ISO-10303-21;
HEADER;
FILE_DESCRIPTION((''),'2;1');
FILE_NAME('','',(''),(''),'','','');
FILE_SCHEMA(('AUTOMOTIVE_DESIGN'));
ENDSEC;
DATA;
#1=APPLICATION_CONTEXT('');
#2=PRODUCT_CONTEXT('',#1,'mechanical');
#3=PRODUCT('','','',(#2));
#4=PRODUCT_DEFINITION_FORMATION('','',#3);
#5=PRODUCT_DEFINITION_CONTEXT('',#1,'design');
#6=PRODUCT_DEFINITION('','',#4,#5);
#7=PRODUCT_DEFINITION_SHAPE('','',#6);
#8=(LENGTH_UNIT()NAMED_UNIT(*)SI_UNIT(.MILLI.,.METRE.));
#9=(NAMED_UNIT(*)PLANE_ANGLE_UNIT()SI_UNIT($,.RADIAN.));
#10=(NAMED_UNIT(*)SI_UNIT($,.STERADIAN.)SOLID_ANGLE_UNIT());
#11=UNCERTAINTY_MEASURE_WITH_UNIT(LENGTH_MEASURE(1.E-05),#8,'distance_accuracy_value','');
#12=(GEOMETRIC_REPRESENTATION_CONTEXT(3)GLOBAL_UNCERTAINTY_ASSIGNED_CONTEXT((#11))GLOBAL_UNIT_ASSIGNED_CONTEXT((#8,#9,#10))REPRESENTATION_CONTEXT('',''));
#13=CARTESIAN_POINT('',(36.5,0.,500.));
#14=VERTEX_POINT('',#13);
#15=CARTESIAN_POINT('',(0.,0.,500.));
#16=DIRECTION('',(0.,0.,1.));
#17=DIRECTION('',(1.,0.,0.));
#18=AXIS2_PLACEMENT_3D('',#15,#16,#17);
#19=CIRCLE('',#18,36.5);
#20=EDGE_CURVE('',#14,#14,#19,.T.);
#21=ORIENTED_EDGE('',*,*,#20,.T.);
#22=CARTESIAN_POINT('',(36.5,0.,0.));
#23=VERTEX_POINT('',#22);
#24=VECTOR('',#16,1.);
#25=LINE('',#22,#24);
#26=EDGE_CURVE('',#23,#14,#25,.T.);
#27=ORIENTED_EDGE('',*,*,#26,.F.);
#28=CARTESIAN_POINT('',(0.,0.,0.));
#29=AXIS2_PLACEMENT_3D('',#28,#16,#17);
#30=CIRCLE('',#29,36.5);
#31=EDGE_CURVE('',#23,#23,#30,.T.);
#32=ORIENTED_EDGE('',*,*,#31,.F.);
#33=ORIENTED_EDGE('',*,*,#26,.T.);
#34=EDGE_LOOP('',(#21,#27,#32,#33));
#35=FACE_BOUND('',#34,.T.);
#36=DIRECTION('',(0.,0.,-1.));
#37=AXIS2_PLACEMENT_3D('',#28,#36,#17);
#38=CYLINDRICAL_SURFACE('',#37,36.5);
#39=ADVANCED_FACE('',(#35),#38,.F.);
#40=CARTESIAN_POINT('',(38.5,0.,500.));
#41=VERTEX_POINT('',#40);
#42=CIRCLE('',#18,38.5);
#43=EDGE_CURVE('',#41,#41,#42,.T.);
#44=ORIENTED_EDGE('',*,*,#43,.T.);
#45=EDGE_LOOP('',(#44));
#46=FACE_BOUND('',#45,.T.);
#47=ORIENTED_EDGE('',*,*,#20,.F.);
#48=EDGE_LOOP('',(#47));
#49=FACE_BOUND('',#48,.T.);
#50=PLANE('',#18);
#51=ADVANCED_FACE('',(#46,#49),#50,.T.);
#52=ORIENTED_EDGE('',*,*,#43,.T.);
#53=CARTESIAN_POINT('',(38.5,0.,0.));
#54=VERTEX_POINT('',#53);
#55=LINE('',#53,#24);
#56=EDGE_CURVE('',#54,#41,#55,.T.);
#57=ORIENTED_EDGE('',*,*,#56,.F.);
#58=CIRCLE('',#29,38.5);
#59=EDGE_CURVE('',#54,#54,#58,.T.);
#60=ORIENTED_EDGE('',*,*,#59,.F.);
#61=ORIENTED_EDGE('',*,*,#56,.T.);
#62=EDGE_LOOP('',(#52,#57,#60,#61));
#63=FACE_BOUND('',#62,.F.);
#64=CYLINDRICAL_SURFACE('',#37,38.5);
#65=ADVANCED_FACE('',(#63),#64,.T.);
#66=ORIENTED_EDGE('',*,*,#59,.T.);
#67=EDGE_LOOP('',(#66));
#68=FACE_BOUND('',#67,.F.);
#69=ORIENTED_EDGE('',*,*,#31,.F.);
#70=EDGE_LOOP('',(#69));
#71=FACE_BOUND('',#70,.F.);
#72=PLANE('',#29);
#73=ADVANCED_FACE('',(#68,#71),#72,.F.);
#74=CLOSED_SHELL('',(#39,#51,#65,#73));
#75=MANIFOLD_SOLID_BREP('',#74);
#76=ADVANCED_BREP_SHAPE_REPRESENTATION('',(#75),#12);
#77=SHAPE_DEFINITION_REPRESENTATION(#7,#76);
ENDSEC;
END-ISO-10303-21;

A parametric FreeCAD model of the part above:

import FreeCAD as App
import Part
import Sketcher
from FreeCAD import Vector
Q = App.Units.Quantity

doc = App.newDocument("Part")
body = doc.addObject("PartDesign::Body", "Body")

# Sketch on XY plane
sketch1 = body.newObject("Sketcher::SketchObject", "Sketch")
sketch1.AttachmentSupport = (doc.getObject("XY_Plane"), [""])
sketch1.MapMode = "FlatFace"
sketch1.addGeometry([
    Part.Circle(Vector(0, 0, 0), Vector(0, 0, 1), 38.5),
    Part.Circle(Vector(0, 0, 0), Vector(0, 0, 1), 36.5),
], False)
sketch1.addConstraint([
    Sketcher.Constraint("Coincident", 0, 3, -1, 1),
    Sketcher.Constraint("Coincident", 1, 3, -1, 1),
    Sketcher.Constraint("Diameter", 0, Q("77 mm")),
    Sketcher.Constraint("Diameter", 1, Q("73 mm")),
])
pad1 = body.newObject("PartDesign::Pad", "Pad")
pad1.Profile = sketch1
pad1.Length = 500

doc.recompute()
